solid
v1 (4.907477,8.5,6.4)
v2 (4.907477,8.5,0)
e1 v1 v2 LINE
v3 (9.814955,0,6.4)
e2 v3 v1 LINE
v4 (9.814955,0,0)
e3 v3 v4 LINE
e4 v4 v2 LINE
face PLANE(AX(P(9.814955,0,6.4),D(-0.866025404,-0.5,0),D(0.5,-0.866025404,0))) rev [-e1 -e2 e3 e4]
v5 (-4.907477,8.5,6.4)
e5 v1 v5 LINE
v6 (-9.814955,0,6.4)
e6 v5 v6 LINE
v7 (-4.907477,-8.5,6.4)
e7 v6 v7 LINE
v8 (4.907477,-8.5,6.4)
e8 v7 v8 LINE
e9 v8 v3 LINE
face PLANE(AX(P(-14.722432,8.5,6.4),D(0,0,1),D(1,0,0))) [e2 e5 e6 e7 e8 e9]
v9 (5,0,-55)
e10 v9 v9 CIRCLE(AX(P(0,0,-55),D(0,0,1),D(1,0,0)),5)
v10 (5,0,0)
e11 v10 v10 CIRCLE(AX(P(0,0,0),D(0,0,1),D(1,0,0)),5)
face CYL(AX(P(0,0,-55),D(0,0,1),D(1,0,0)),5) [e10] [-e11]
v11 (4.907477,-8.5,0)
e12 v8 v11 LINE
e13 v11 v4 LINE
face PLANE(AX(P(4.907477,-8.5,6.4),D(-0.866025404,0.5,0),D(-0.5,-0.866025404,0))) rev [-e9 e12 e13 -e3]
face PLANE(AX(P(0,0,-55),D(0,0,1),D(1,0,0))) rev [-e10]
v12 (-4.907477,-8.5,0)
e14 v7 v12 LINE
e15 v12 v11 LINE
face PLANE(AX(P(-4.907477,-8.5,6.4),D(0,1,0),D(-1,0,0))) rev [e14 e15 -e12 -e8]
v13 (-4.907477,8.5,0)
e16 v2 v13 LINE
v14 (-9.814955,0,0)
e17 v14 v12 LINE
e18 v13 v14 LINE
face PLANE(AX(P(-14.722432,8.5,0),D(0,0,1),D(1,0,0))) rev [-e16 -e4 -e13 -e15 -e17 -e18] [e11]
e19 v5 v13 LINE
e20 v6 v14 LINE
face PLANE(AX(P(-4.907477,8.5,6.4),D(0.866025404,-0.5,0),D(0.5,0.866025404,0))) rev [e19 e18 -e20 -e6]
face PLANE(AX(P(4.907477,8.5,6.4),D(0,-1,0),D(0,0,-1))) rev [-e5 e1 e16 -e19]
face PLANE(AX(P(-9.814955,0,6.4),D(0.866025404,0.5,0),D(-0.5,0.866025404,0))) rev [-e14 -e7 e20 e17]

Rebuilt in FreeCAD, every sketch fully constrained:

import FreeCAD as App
import Part
import Sketcher
from FreeCAD import Vector
Q = App.Units.Quantity


def add_polygon(sketch, points):
    """Adds a closed chain of lines whose ends are joined by coincident constraints."""
    first, n = sketch.GeometryCount, len(points)
    for a, b in zip(points, points[1:] + points[:1]):
        sketch.addGeometry(Part.LineSegment(App.Vector(*a, 0), App.Vector(*b, 0)), False)
    for i in range(n):
        sketch.addConstraint(Sketcher.Constraint("Coincident", first + i, 2, first + (i + 1) % n, 1))

doc = App.newDocument("Part")
body = doc.addObject("PartDesign::Body", "Body")

# Sketch on XY plane
sketch1 = doc.addObject("Sketcher::SketchObject", "Sketch")
body.addObject(sketch1)
sketch1.AttachmentSupport = (doc.XY_Plane, [""])
sketch1.MapMode = "FlatFace"
sketch1.addGeometry(Part.Circle(Vector(0, 0, 0), Vector(0, 0, 1), 5), False)
sketch1.addConstraint([
    Sketcher.Constraint("Coincident", 0, 3, -1, 1),
    Sketcher.Constraint("Diameter", 0, 10.0),
])
pad1 = doc.addObject("PartDesign::Pad", "Pad")
body.addObject(pad1)
pad1.Profile = sketch1
pad1.Length = 55
pad1.Reversed = True

# Sketch on XY plane
sketch2 = doc.addObject("Sketcher::SketchObject", "Sketch001")
body.addObject(sketch2)
sketch2.AttachmentSupport = (doc.XY_Plane, [""])
sketch2.MapMode = "FlatFace"
add_polygon(sketch2, [(-4.907477, 8.5), (-9.814955, 0), (-4.907477, -8.5), (4.907477, -8.5), (9.814955, 0), (4.907477, 8.5)])  # lines 0-5
sketch2.addConstraint([
    Sketcher.Constraint("Horizontal", 2),
    Sketcher.Constraint("Horizontal", 5),
    Sketcher.Constraint("Symmetric", 0, 2, 3, 2, -1, 1),
    Sketcher.Constraint("Symmetric", 1, 2, 4, 2, -1, 1),
    Sketcher.Constraint("PointOnObject", 0, 2, -1),
    Sketcher.Constraint("Parallel", 0, 3),
    Sketcher.Constraint("Vertical", 2, 2, 4, 2),
    Sketcher.Constraint("Angle", 0, Q("-120 deg")),
    Sketcher.Constraint("DistanceY", 2, 2, 4, 2, 17.0),
    Sketcher.Constraint("DistanceX", 2, 1, 2, 2, 9.814955),
])
pad2 = doc.addObject("PartDesign::Pad", "Pad001")
body.addObject(pad2)
pad2.Profile = sketch2
pad2.Length = 6.4

doc.recompute()
